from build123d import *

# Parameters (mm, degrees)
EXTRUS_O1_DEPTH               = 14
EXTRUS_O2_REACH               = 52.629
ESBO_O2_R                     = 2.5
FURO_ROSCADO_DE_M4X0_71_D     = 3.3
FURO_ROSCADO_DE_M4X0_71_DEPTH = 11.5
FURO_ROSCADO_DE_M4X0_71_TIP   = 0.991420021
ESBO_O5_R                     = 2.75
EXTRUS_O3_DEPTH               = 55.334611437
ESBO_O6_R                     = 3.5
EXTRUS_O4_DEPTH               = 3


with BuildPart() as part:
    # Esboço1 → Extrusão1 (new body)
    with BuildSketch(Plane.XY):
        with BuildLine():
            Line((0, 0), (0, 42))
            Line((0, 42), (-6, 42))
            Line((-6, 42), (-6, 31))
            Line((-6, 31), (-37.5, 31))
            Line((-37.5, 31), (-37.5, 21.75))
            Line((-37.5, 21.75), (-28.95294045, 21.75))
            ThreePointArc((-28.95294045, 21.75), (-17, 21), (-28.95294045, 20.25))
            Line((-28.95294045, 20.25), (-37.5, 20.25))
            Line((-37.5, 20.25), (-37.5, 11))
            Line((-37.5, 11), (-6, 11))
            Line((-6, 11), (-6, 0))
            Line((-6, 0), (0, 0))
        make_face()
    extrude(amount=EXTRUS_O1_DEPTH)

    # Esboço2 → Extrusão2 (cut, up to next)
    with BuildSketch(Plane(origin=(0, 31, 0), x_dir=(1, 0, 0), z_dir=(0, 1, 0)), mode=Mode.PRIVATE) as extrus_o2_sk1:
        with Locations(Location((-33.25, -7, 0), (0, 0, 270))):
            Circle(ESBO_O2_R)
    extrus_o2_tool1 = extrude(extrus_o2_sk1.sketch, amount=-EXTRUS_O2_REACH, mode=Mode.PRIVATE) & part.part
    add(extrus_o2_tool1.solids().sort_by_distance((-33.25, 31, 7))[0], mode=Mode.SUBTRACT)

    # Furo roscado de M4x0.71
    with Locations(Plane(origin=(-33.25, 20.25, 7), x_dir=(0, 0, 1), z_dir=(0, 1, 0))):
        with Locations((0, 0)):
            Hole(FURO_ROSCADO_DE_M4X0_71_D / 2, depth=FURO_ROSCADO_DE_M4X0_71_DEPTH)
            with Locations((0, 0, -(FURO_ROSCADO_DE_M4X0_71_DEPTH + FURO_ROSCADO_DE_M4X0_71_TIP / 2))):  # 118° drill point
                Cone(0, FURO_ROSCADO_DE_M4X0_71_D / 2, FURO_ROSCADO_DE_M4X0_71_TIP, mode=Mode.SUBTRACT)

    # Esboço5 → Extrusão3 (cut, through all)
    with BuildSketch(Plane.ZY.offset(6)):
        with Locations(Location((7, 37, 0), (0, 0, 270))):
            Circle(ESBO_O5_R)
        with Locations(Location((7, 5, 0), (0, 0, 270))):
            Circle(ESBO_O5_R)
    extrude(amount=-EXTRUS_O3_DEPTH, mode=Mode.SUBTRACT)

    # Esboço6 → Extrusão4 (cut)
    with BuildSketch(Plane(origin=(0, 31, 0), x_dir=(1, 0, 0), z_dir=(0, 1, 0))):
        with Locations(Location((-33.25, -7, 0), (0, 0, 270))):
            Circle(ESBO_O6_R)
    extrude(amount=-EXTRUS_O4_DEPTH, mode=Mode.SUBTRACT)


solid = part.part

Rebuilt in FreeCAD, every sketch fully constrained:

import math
import FreeCAD as App
import Part
import Sketcher

V = App.Vector
Q = App.Units.Quantity

doc = App.newDocument("Part")
body = doc.addObject("PartDesign::Body", "Body")

sketch1 = doc.addObject("Sketcher::SketchObject", "Sketch")
body.addObject(sketch1)
sketch1.AttachmentSupport = (doc.XY_Plane, [""])
sketch1.MapMode = "FlatFace"
sketch1.addGeometry(Part.LineSegment(V(0, 0, 0), V(0, 42, 0)), False)
sketch1.addGeometry(Part.LineSegment(V(0, 42, 0), V(-6, 42, 0)), False)
sketch1.addGeometry(Part.LineSegment(V(-6, 42, 0), V(-6, 31, 0)), False)
sketch1.addGeometry(Part.LineSegment(V(-6, 31, 0), V(-37.5, 31, 0)), False)
sketch1.addGeometry(Part.LineSegment(V(-37.5, 31, 0), V(-37.5, 21.8, 0)), False)
sketch1.addGeometry(Part.LineSegment(V(-37.5, 21.8, 0), V(-29, 21.8, 0)), False)
sketch1.addGeometry(Part.ArcOfCircle(Part.Circle(V(-23, 21, 0), V(0, 0, 1), 6), math.radians(-173), math.radians(173)), False)
sketch1.addGeometry(Part.LineSegment(V(-29, 20.2, 0), V(-37.5, 20.2, 0)), False)
sketch1.addGeometry(Part.LineSegment(V(-37.5, 20.2, 0), V(-37.5, 11, 0)), False)
sketch1.addGeometry(Part.LineSegment(V(-37.5, 11, 0), V(-6, 11, 0)), False)
sketch1.addGeometry(Part.LineSegment(V(-6, 11, 0), V(-6, 0, 0)), False)
sketch1.addGeometry(Part.LineSegment(V(-6, 0, 0), V(0, 0, 0)), False)
sketch1.addConstraint(Sketcher.Constraint("Coincident", 0, 2, 1, 1))
sketch1.addConstraint(Sketcher.Constraint("Coincident", 1, 2, 2, 1))
sketch1.addConstraint(Sketcher.Constraint("Coincident", 2, 2, 3, 1))
sketch1.addConstraint(Sketcher.Constraint("Coincident", 3, 2, 4, 1))
sketch1.addConstraint(Sketcher.Constraint("Coincident", 4, 2, 5, 1))
sketch1.addConstraint(Sketcher.Constraint("Coincident", 5, 2, 6, 2))
sketch1.addConstraint(Sketcher.Constraint("Coincident", 6, 1, 7, 1))
sketch1.addConstraint(Sketcher.Constraint("Coincident", 7, 2, 8, 1))
sketch1.addConstraint(Sketcher.Constraint("Coincident", 8, 2, 9, 1))
sketch1.addConstraint(Sketcher.Constraint("Coincident", 9, 2, 10, 1))
sketch1.addConstraint(Sketcher.Constraint("Coincident", 10, 2, 11, 1))
sketch1.addConstraint(Sketcher.Constraint("Coincident", 11, 2, 0, 1))
sketch1.addConstraint(Sketcher.Constraint("Vertical", 0))
sketch1.addConstraint(Sketcher.Constraint("Horizontal", 1))
sketch1.addConstraint(Sketcher.Constraint("Vertical", 2))
sketch1.addConstraint(Sketcher.Constraint("Horizontal", 3))
sketch1.addConstraint(Sketcher.Constraint("Vertical", 4))
sketch1.addConstraint(Sketcher.Constraint("Horizontal", 5))
sketch1.addConstraint(Sketcher.Constraint("Horizontal", 7))
sketch1.addConstraint(Sketcher.Constraint("Vertical", 8))
sketch1.addConstraint(Sketcher.Constraint("Horizontal", 9))
sketch1.addConstraint(Sketcher.Constraint("Vertical", 10))
sketch1.addConstraint(Sketcher.Constraint("Horizontal", 11))
sketch1.addConstraint(Sketcher.Constraint("Coincident", 11, 2, -1, 1))
sketch1.addConstraint(Sketcher.Constraint("Vertical", 5, 2, 6, 1))
sketch1.addConstraint(Sketcher.Constraint("Vertical", 4, 2, 7, 2))
sketch1.addConstraint(Sketcher.Constraint("Vertical", 2, 2, 9, 2))
sketch1.addConstraint(Sketcher.Constraint("Equal", 4, 8))
sketch1.addConstraint(Sketcher.Constraint("Equal", 2, 10))
sketch1.addConstraint(Sketcher.Constraint("Radius", 6, Q("6 mm")))
sketch1.addConstraint(Sketcher.Constraint("DistanceX", 1, 2, 1, 1, Q("6 mm")))
sketch1.addConstraint(Sketcher.Constraint("DistanceY", 0, 1, 0, 2, Q("42 mm")))
sketch1.addConstraint(Sketcher.Constraint("DistanceY", 2, 2, 2, 1, Q("11 mm")))
sketch1.addConstraint(Sketcher.Constraint("DistanceX", 3, 2, 3, 1, Q("31.5 mm")))
sketch1.addConstraint(Sketcher.Constraint("DistanceX", 6, 3, -1, 1, Q("23 mm")))
sketch1.addConstraint(Sketcher.Constraint("DistanceY", 4, 2, 4, 1, Q("9.25 mm")))
pad1 = doc.addObject("PartDesign::Pad", "Pad")
body.addObject(pad1)
pad1.Profile = sketch1
pad1.Length = 14

sketch2 = doc.addObject("Sketcher::SketchObject", "Sketch001")
body.addObject(sketch2)
sketch2.AttachmentSupport = (doc.XZ_Plane, [""])
sketch2.MapMode = "FlatFace"
sketch2.AttachmentOffset = App.Placement(V(0, 0, -31), App.Rotation())
sketch2.addGeometry(Part.Circle(V(-33.2, 7, 0), V(0, 0, 1), 2.5), False)
sketch2.addConstraint(Sketcher.Constraint("Diameter", 0, Q("5 mm")))
sketch2.addConstraint(Sketcher.Constraint("DistanceY", -1, 1, 0, 3, Q("7 mm")))
sketch2.addConstraint(Sketcher.Constraint("DistanceX", 0, 3, -1, 1, Q("33.25 mm")))
pocket1 = doc.addObject("PartDesign::Pocket", "Pocket")
body.addObject(pocket1)
pocket1.Profile = sketch2
pocket1.Type = "UpToFirst"
pocket1.Reversed = True

sketch3 = doc.addObject("Sketcher::SketchObject", "Sketch002")
body.addObject(sketch3)
sketch3.AttachmentSupport = (doc.XZ_Plane, [""])
sketch3.MapMode = "FlatFace"
sketch3.AttachmentOffset = App.Placement(V(0, 0, -20.25), App.Rotation())
sketch3.addGeometry(Part.Circle(V(-33.2, 7, 0), V(0, 0, 1), 1.6), False)
sketch3.addConstraint(Sketcher.Constraint("Diameter", 0, Q("3.3 mm")))
sketch3.addConstraint(Sketcher.Constraint("DistanceY", -1, 1, 0, 3, Q("7 mm")))
sketch3.addConstraint(Sketcher.Constraint("DistanceX", 0, 3, -1, 1, Q("33.25 mm")))
doc.recompute()
hole = doc.addObject("PartDesign::Hole", "Hole")
body.addObject(hole)
hole.Profile = sketch3
hole.ThreadType = "None"
hole.Diameter = 3.3
hole.DepthType = "Dimension"
hole.Depth = 11.5
hole.DrillPoint = "Angled"
hole.DrillPointAngle = 118
hole.Reversed = True

sketch4 = doc.addObject("Sketcher::SketchObject", "Sketch003")
body.addObject(sketch4)
sketch4.AttachmentSupport = (doc.YZ_Plane, [""])
sketch4.MapMode = "FlatFace"
sketch4.AttachmentOffset = App.Placement(V(0, 0, -6), App.Rotation())
sketch4.addGeometry(Part.Circle(V(37, 7, 0), V(0, 0, 1), 2.8), False)
sketch4.addGeometry(Part.Circle(V(5, 7, 0), V(0, 0, 1), 2.8), False)
sketch4.addConstraint(Sketcher.Constraint("Equal", 0, 1))
sketch4.addConstraint(Sketcher.Constraint("Horizontal", 0, 3, 1, 3))
sketch4.addConstraint(Sketcher.Constraint("Diameter", 0, Q("5.5 mm")))
sketch4.addConstraint(Sketcher.Constraint("DistanceX", -1, 1, 0, 3, Q("37 mm")))
sketch4.addConstraint(Sketcher.Constraint("DistanceY", -1, 1, 0, 3, Q("7 mm")))
sketch4.addConstraint(Sketcher.Constraint("DistanceX", -1, 1, 1, 3, Q("5 mm")))
pocket2 = doc.addObject("PartDesign::Pocket", "Pocket001")
body.addObject(pocket2)
pocket2.Profile = sketch4
pocket2.Type = "ThroughAll"
pocket2.Reversed = True

sketch5 = doc.addObject("Sketcher::SketchObject", "Sketch004")
body.addObject(sketch5)
sketch5.AttachmentSupport = (doc.XZ_Plane, [""])
sketch5.MapMode = "FlatFace"
sketch5.AttachmentOffset = App.Placement(V(0, 0, -31), App.Rotation())
sketch5.addGeometry(Part.Circle(V(-33.2, 7, 0), V(0, 0, 1), 3.5), False)
sketch5.addConstraint(Sketcher.Constraint("Diameter", 0, Q("7 mm")))
sketch5.addConstraint(Sketcher.Constraint("DistanceY", -1, 1, 0, 3, Q("7 mm")))
sketch5.addConstraint(Sketcher.Constraint("DistanceX", 0, 3, -1, 1, Q("33.25 mm")))
pocket3 = doc.addObject("PartDesign::Pocket", "Pocket002")
body.addObject(pocket3)
pocket3.Profile = sketch5
pocket3.Length = 3
pocket3.Reversed = True

doc.recompute()
